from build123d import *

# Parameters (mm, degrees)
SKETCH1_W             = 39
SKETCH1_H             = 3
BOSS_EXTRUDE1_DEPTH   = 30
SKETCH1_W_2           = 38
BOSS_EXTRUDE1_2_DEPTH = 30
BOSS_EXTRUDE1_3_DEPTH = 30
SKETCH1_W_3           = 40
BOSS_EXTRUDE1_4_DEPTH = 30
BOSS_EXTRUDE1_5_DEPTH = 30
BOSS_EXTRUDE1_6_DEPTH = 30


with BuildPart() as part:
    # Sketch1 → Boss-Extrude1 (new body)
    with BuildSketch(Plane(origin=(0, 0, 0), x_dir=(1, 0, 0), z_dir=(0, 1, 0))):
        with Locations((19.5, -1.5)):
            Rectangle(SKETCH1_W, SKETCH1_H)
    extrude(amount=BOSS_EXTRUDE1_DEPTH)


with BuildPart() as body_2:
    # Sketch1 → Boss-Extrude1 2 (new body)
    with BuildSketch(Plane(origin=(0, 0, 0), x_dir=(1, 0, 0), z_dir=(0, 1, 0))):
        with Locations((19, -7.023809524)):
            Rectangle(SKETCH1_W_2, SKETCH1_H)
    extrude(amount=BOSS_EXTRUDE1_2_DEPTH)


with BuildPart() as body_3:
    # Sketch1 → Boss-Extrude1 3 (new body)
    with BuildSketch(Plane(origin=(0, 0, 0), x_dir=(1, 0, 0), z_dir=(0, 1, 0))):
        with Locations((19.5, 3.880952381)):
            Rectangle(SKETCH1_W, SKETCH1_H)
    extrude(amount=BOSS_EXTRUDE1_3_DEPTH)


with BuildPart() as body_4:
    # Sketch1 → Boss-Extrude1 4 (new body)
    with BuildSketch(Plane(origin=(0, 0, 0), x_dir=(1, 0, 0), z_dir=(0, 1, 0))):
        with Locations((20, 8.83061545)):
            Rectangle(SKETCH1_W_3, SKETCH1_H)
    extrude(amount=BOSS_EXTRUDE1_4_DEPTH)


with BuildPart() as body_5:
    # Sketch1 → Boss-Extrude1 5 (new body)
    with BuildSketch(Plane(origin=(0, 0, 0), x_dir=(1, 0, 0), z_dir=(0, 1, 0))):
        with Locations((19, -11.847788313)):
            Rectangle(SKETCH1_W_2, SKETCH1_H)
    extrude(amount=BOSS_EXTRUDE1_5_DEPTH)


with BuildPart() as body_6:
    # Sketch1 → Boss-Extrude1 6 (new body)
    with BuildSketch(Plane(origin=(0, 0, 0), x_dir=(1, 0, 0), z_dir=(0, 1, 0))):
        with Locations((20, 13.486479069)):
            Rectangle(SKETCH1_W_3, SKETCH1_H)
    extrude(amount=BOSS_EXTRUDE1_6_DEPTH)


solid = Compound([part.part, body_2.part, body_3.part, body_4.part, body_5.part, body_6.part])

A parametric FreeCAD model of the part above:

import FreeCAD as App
import Part
import Sketcher
Q = App.Units.Quantity


def add_polygon(sketch, points):
    """Adds a closed chain of lines whose ends are joined by coincident constraints."""
    first, n = sketch.GeometryCount, len(points)
    for a, b in zip(points, points[1:] + points[:1]):
        sketch.addGeometry(Part.LineSegment(App.Vector(*a, 0), App.Vector(*b, 0)), False)
    for i in range(n):
        sketch.addConstraint(Sketcher.Constraint("Coincident", first + i, 2, first + (i + 1) % n, 1))

doc = App.newDocument("Part")
body = doc.addObject("PartDesign::Body", "Body")

# Sketch on XZ plane
sketch1 = body.newObject("Sketcher::SketchObject", "Sketch")
sketch1.AttachmentSupport = (doc.getObject("XZ_Plane"), [""])
sketch1.MapMode = "FlatFace"
add_polygon(sketch1, [(0, 0), (0, 3), (39, 3), (39, 0)])  # lines 0-3
sketch1.addConstraint([
    Sketcher.Constraint("Vertical", 0),
    Sketcher.Constraint("Horizontal", 1),
    Sketcher.Constraint("Vertical", 2),
    Sketcher.Constraint("Horizontal", 3),
    Sketcher.Constraint("Coincident", 3, 2, -1, 1),
    Sketcher.Constraint("DistanceX", 1, 1, 1, 2, Q("39 mm")),
    Sketcher.Constraint("DistanceY", 0, 1, 0, 2, Q("3 mm")),
])
pad1 = body.newObject("PartDesign::Pad", "Pad")
pad1.Profile = sketch1
pad1.Length = 30
pad1.Reversed = True
body2 = doc.addObject("PartDesign::Body", "Body001")

# Sketch on XZ plane
sketch2 = body2.newObject("Sketcher::SketchObject", "Sketch001")
sketch2.AttachmentSupport = (doc.getObject("XZ_Plane001"), [""])
sketch2.MapMode = "FlatFace"
add_polygon(sketch2, [(0, 5.5), (0, 8.5), (38, 8.5), (38, 5.5)])  # lines 0-3
sketch2.addConstraint([
    Sketcher.Constraint("Vertical", 0),
    Sketcher.Constraint("Horizontal", 1),
    Sketcher.Constraint("Vertical", 2),
    Sketcher.Constraint("Horizontal", 3),
    Sketcher.Constraint("PointOnObject", 0, 2, -2),
    Sketcher.Constraint("DistanceX", 1, 1, 1, 2, Q("38 mm")),
    Sketcher.Constraint("DistanceY", 0, 1, 0, 2, Q("3 mm")),
    Sketcher.Constraint("DistanceY", -1, 1, 0, 2, Q("8.52381 mm")),
])
pad2 = body2.newObject("PartDesign::Pad", "Pad001")
pad2.Profile = sketch2
pad2.Length = 30
pad2.Reversed = True
body3 = doc.addObject("PartDesign::Body", "Body002")

# Sketch on XZ plane
sketch3 = body3.newObject("Sketcher::SketchObject", "Sketch002")
sketch3.AttachmentSupport = (doc.getObject("XZ_Plane002"), [""])
sketch3.MapMode = "FlatFace"
add_polygon(sketch3, [(0, -5.4), (0, -2.4), (39, -2.4), (39, -5.4)])  # lines 0-3
sketch3.addConstraint([
    Sketcher.Constraint("Vertical", 0),
    Sketcher.Constraint("Horizontal", 1),
    Sketcher.Constraint("Vertical", 2),
    Sketcher.Constraint("Horizontal", 3),
    Sketcher.Constraint("PointOnObject", 0, 2, -2),
    Sketcher.Constraint("DistanceX", 1, 1, 1, 2, Q("39 mm")),
    Sketcher.Constraint("DistanceY", 0, 1, 0, 2, Q("3 mm")),
    Sketcher.Constraint("DistanceY", 0, 2, -1, 1, Q("2.380952 mm")),
])
pad3 = body3.newObject("PartDesign::Pad", "Pad002")
pad3.Profile = sketch3
pad3.Length = 30
pad3.Reversed = True
body4 = doc.addObject("PartDesign::Body", "Body003")

# Sketch on XZ plane
sketch4 = body4.newObject("Sketcher::SketchObject", "Sketch003")
sketch4.AttachmentSupport = (doc.getObject("XZ_Plane003"), [""])
sketch4.MapMode = "FlatFace"
add_polygon(sketch4, [(0, -10.3), (0, -7.3), (40, -7.3), (40, -10.3)])  # lines 0-3
sketch4.addConstraint([
    Sketcher.Constraint("Vertical", 0),
    Sketcher.Constraint("Horizontal", 1),
    Sketcher.Constraint("Vertical", 2),
    Sketcher.Constraint("Horizontal", 3),
    Sketcher.Constraint("PointOnObject", 0, 2, -2),
    Sketcher.Constraint("DistanceX", 1, 1, 1, 2, Q("40 mm")),
    Sketcher.Constraint("DistanceY", 0, 1, 0, 2, Q("3 mm")),
    Sketcher.Constraint("DistanceY", 0, 2, -1, 1, Q("7.330615 mm")),
])
pad4 = body4.newObject("PartDesign::Pad", "Pad003")
pad4.Profile = sketch4
pad4.Length = 30
pad4.Reversed = True
body5 = doc.addObject("PartDesign::Body", "Body004")

# Sketch on XZ plane
sketch5 = body5.newObject("Sketcher::SketchObject", "Sketch004")
sketch5.AttachmentSupport = (doc.getObject("XZ_Plane004"), [""])
sketch5.MapMode = "FlatFace"
add_polygon(sketch5, [(0, 10.3), (0, 13.3), (38, 13.3), (38, 10.3)])  # lines 0-3
sketch5.addConstraint([
    Sketcher.Constraint("Vertical", 0),
    Sketcher.Constraint("Horizontal", 1),
    Sketcher.Constraint("Vertical", 2),
    Sketcher.Constraint("Horizontal", 3),
    Sketcher.Constraint("PointOnObject", 0, 2, -2),
    Sketcher.Constraint("DistanceX", 1, 1, 1, 2, Q("38 mm")),
    Sketcher.Constraint("DistanceY", 0, 1, 0, 2, Q("3 mm")),
    Sketcher.Constraint("DistanceY", -1, 1, 0, 2, Q("13.347788 mm")),
])
pad5 = body5.newObject("PartDesign::Pad", "Pad004")
pad5.Profile = sketch5
pad5.Length = 30
pad5.Reversed = True
body6 = doc.addObject("PartDesign::Body", "Body005")

# Sketch on XZ plane
sketch6 = body6.newObject("Sketcher::SketchObject", "Sketch005")
sketch6.AttachmentSupport = (doc.getObject("XZ_Plane005"), [""])
sketch6.MapMode = "FlatFace"
add_polygon(sketch6, [(0, -15), (0, -12), (40, -12), (40, -15)])  # lines 0-3
sketch6.addConstraint([
    Sketcher.Constraint("Vertical", 0),
    Sketcher.Constraint("Horizontal", 1),
    Sketcher.Constraint("Vertical", 2),
    Sketcher.Constraint("Horizontal", 3),
    Sketcher.Constraint("PointOnObject", 0, 2, -2),
    Sketcher.Constraint("DistanceX", 1, 1, 1, 2, Q("40 mm")),
    Sketcher.Constraint("DistanceY", 0, 1, 0, 2, Q("3 mm")),
    Sketcher.Constraint("DistanceY", 0, 2, -1, 1, Q("11.986479 mm")),
])
pad6 = body6.newObject("PartDesign::Pad", "Pad005")
pad6.Profile = sketch6
pad6.Length = 30
pad6.Reversed = True

doc.recompute()
